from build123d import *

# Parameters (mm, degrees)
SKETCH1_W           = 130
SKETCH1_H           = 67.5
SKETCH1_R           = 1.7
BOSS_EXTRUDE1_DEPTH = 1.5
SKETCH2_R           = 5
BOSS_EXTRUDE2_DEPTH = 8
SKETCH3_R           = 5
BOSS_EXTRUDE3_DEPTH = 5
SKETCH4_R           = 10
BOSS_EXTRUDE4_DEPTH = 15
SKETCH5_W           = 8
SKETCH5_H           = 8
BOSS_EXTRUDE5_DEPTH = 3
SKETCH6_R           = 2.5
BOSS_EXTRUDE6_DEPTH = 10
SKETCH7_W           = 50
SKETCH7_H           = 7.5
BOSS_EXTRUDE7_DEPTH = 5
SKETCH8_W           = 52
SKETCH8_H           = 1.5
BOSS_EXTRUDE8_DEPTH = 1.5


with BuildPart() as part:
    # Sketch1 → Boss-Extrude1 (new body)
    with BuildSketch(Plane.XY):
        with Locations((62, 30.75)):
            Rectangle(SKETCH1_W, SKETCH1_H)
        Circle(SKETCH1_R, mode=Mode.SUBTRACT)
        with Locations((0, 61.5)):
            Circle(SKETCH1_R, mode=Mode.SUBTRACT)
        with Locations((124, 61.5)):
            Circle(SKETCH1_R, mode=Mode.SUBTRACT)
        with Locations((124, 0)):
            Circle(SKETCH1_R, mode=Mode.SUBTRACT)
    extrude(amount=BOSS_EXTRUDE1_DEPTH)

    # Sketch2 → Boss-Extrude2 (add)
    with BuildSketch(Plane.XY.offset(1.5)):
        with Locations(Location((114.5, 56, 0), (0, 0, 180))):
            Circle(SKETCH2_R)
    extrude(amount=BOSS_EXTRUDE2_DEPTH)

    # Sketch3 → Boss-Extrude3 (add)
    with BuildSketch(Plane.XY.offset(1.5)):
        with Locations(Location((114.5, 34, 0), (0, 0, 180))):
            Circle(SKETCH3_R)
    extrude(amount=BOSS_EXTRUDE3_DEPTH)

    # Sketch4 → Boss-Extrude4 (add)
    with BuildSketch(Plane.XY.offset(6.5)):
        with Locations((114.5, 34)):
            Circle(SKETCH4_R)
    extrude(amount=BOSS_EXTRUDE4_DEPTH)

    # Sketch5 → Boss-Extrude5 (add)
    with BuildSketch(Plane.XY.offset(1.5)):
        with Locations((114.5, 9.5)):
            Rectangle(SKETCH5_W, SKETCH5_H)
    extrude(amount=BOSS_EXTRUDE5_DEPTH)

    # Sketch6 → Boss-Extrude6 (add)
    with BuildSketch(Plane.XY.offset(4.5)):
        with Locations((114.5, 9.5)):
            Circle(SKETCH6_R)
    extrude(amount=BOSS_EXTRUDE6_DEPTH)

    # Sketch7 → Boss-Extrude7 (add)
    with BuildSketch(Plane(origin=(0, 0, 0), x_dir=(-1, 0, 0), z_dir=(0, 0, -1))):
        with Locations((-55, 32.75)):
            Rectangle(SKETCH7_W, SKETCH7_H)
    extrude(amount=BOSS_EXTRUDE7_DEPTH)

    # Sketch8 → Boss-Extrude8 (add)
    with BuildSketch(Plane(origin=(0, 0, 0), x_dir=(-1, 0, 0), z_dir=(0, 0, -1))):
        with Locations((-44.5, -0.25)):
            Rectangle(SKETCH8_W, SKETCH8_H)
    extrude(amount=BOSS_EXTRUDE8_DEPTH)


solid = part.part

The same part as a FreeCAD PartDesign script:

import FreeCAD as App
import Part
import Sketcher

V = App.Vector
Q = App.Units.Quantity


def add_polygon(sketch, points):
    """Adds a closed chain of lines whose ends are joined by coincident constraints."""
    first, n = sketch.GeometryCount, len(points)
    for a, b in zip(points, points[1:] + points[:1]):
        sketch.addGeometry(Part.LineSegment(App.Vector(*a, 0), App.Vector(*b, 0)), False)
    for i in range(n):
        sketch.addConstraint(Sketcher.Constraint("Coincident", first + i, 2, first + (i + 1) % n, 1))

doc = App.newDocument("Part")
body = doc.addObject("PartDesign::Body", "Body")

# Sketch on XY plane
sketch1 = body.newObject("Sketcher::SketchObject", "Sketch")
sketch1.AttachmentSupport = (doc.getObject("XY_Plane"), [""])
sketch1.MapMode = "FlatFace"
add_polygon(sketch1, [(-3, 64.5), (-3, -3), (127, -3), (127, 64.5)])  # lines 0-3
sketch1.addGeometry(Part.Circle(V(0, 0, 0), V(0, 0, 1), 1.7), False)  # 4
sketch1.addGeometry(Part.Circle(V(124, 0, 0), V(0, 0, 1), 1.7), False)  # 5
sketch1.addGeometry(Part.Circle(V(0, 61.5, 0), V(0, 0, 1), 1.7), False)  # 6
sketch1.addGeometry(Part.Circle(V(124, 61.5, 0), V(0, 0, 1), 1.7), False)  # 7
sketch1.addConstraint([
    Sketcher.Constraint("Vertical", 0),
    Sketcher.Constraint("Horizontal", 1),
    Sketcher.Constraint("Vertical", 2),
    Sketcher.Constraint("Horizontal", 3),
    Sketcher.Constraint("Coincident", 4, 3, -1, 1),
    Sketcher.Constraint("Equal", 4, 5),
    Sketcher.Constraint("Equal", 5, 6),
    Sketcher.Constraint("Equal", 6, 7),
    Sketcher.Constraint("PointOnObject", 5, 3, -1),
    Sketcher.Constraint("PointOnObject", 6, 3, -2),
    Sketcher.Constraint("Horizontal", 6, 3, 7, 3),
    Sketcher.Constraint("Vertical", 5, 3, 7, 3),
    Sketcher.Constraint("Diameter", 4, Q("3.4 mm")),
    Sketcher.Constraint("DistanceX", 1, 1, 1, 2, Q("130 mm")),
    Sketcher.Constraint("DistanceY", 0, 2, 0, 1, Q("67.5 mm")),
    Sketcher.Constraint("DistanceX", -1, 1, 5, 3, Q("124 mm")),
    Sketcher.Constraint("DistanceX", 0, 2, -1, 1, Q("3 mm")),
    Sketcher.Constraint("DistanceY", 0, 2, -1, 1, Q("3 mm")),
    Sketcher.Constraint("DistanceY", 7, 3, 2, 2, Q("3 mm")),
])
pad1 = body.newObject("PartDesign::Pad", "Pad")
pad1.Profile = sketch1
pad1.Length = 1.5

# Sketch on XY plane
sketch2 = body.newObject("Sketcher::SketchObject", "Sketch001")
sketch2.AttachmentSupport = (doc.getObject("XY_Plane"), [""])
sketch2.MapMode = "FlatFace"
sketch2.AttachmentOffset = App.Placement(V(0, 0, 1.5), App.Rotation())
sketch2.addGeometry(Part.Circle(V(114, 56, 0), V(0, 0, 1), 5), False)
sketch2.addConstraint([
    Sketcher.Constraint("Diameter", 0, Q("10 mm")),
    Sketcher.Constraint("DistanceY", -1, 1, 0, 3, Q("56 mm")),
    Sketcher.Constraint("DistanceX", -1, 1, 0, 3, Q("114.5 mm")),
])
pad2 = body.newObject("PartDesign::Pad", "Pad001")
pad2.Profile = sketch2
pad2.Length = 8

# Sketch on XY plane
sketch3 = body.newObject("Sketcher::SketchObject", "Sketch002")
sketch3.AttachmentSupport = (doc.getObject("XY_Plane"), [""])
sketch3.MapMode = "FlatFace"
sketch3.AttachmentOffset = App.Placement(V(0, 0, 1.5), App.Rotation())
sketch3.addGeometry(Part.Circle(V(114, 34, 0), V(0, 0, 1), 5), False)
sketch3.addConstraint([
    Sketcher.Constraint("Diameter", 0, Q("10 mm")),
    Sketcher.Constraint("DistanceY", -1, 1, 0, 3, Q("34 mm")),
    Sketcher.Constraint("DistanceX", -1, 1, 0, 3, Q("114.5 mm")),
])
pad3 = body.newObject("PartDesign::Pad", "Pad002")
pad3.Profile = sketch3
pad3.Length = 5

# Sketch on XY plane
sketch4 = body.newObject("Sketcher::SketchObject", "Sketch003")
sketch4.AttachmentSupport = (doc.getObject("XY_Plane"), [""])
sketch4.MapMode = "FlatFace"
sketch4.AttachmentOffset = App.Placement(V(0, 0, 6.5), App.Rotation())
sketch4.addGeometry(Part.Circle(V(114, 34, 0), V(0, 0, 1), 10), False)
sketch4.addConstraint([
    Sketcher.Constraint("Diameter", 0, Q("20 mm")),
    Sketcher.Constraint("DistanceY", -1, 1, 0, 3, Q("34 mm")),
    Sketcher.Constraint("DistanceX", -1, 1, 0, 3, Q("114.5 mm")),
])
pad4 = body.newObject("PartDesign::Pad", "Pad003")
pad4.Profile = sketch4
pad4.Length = 15

# Sketch on XY plane
sketch5 = body.newObject("Sketcher::SketchObject", "Sketch004")
sketch5.AttachmentSupport = (doc.getObject("XY_Plane"), [""])
sketch5.MapMode = "FlatFace"
sketch5.AttachmentOffset = App.Placement(V(0, 0, 1.5), App.Rotation())
add_polygon(sketch5, [(110, 14), (110, 6), (118, 6), (118, 14)])  # lines 0-3
sketch5.addConstraint([
    Sketcher.Constraint("Vertical", 0),
    Sketcher.Constraint("Horizontal", 1),
    Sketcher.Constraint("Vertical", 2),
    Sketcher.Constraint("Horizontal", 3),
    Sketcher.Constraint("Equal", 3, 0),
    Sketcher.Constraint("DistanceX", 1, 1, 1, 2, Q("8 mm")),
    Sketcher.Constraint("DistanceX", -1, 1, 0, 2, Q("110.5 mm")),
    Sketcher.Constraint("DistanceY", -1, 1, 0, 2, Q("5.5 mm")),
])
pad5 = body.newObject("PartDesign::Pad", "Pad004")
pad5.Profile = sketch5
pad5.Length = 3

# Sketch on XY plane
sketch6 = body.newObject("Sketcher::SketchObject", "Sketch005")
sketch6.AttachmentSupport = (doc.getObject("XY_Plane"), [""])
sketch6.MapMode = "FlatFace"
sketch6.AttachmentOffset = App.Placement(V(0, 0, 4.5), App.Rotation())
sketch6.addGeometry(Part.Circle(V(114.5, 9.5, 0), V(0, 0, 1), 2.5), False)
sketch6.addConstraint([
    Sketcher.Constraint("Diameter", 0, Q("5 mm")),
    Sketcher.Constraint("DistanceX", -1, 1, 0, 3, Q("114.5 mm")),
    Sketcher.Constraint("DistanceY", -1, 1, 0, 3, Q("9.5 mm")),
])
pad6 = body.newObject("PartDesign::Pad", "Pad005")
pad6.Profile = sketch6
pad6.Length = 10

# Sketch on XY plane
sketch7 = body.newObject("Sketcher::SketchObject", "Sketch006")
sketch7.AttachmentSupport = (doc.getObject("XY_Plane"), [""])
sketch7.MapMode = "FlatFace"
add_polygon(sketch7, [(80, 36), (80, 29), (30, 29), (30, 36)])  # lines 0-3
sketch7.addConstraint([
    Sketcher.Constraint("Vertical", 0),
    Sketcher.Constraint("Horizontal", 1),
    Sketcher.Constraint("Vertical", 2),
    Sketcher.Constraint("Horizontal", 3),
    Sketcher.Constraint("DistanceX", 1, 2, 1, 1, Q("50 mm")),
    Sketcher.Constraint("DistanceY", 0, 2, 0, 1, Q("7.5 mm")),
    Sketcher.Constraint("DistanceX", -1, 1, 0, 2, Q("80 mm")),
    Sketcher.Constraint("DistanceY", -1, 1, 0, 2, Q("29 mm")),
])
pad7 = body.newObject("PartDesign::Pad", "Pad006")
pad7.Profile = sketch7
pad7.Length = 5
pad7.Reversed = True

# Sketch on XY plane
sketch8 = body.newObject("Sketcher::SketchObject", "Sketch007")
sketch8.AttachmentSupport = (doc.getObject("XY_Plane"), [""])
sketch8.MapMode = "FlatFace"
add_polygon(sketch8, [(70.5, 0.5), (70.5, -1), (18.5, -1), (18.5, 0.5)])  # lines 0-3
sketch8.addConstraint([
    Sketcher.Constraint("Vertical", 0),
    Sketcher.Constraint("Horizontal", 1),
    Sketcher.Constraint("Vertical", 2),
    Sketcher.Constraint("Horizontal", 3),
    Sketcher.Constraint("DistanceX", 1, 2, 1, 1, Q("52 mm")),
    Sketcher.Constraint("DistanceY", 0, 2, 0, 1, Q("1.5 mm")),
    Sketcher.Constraint("DistanceY", 0, 2, -1, 1, Q("1 mm")),
    Sketcher.Constraint("DistanceX", -1, 1, 0, 2, Q("70.5 mm")),
])
pad8 = body.newObject("PartDesign::Pad", "Pad007")
pad8.Profile = sketch8
pad8.Length = 1.5
pad8.Reversed = True

doc.recompute()
